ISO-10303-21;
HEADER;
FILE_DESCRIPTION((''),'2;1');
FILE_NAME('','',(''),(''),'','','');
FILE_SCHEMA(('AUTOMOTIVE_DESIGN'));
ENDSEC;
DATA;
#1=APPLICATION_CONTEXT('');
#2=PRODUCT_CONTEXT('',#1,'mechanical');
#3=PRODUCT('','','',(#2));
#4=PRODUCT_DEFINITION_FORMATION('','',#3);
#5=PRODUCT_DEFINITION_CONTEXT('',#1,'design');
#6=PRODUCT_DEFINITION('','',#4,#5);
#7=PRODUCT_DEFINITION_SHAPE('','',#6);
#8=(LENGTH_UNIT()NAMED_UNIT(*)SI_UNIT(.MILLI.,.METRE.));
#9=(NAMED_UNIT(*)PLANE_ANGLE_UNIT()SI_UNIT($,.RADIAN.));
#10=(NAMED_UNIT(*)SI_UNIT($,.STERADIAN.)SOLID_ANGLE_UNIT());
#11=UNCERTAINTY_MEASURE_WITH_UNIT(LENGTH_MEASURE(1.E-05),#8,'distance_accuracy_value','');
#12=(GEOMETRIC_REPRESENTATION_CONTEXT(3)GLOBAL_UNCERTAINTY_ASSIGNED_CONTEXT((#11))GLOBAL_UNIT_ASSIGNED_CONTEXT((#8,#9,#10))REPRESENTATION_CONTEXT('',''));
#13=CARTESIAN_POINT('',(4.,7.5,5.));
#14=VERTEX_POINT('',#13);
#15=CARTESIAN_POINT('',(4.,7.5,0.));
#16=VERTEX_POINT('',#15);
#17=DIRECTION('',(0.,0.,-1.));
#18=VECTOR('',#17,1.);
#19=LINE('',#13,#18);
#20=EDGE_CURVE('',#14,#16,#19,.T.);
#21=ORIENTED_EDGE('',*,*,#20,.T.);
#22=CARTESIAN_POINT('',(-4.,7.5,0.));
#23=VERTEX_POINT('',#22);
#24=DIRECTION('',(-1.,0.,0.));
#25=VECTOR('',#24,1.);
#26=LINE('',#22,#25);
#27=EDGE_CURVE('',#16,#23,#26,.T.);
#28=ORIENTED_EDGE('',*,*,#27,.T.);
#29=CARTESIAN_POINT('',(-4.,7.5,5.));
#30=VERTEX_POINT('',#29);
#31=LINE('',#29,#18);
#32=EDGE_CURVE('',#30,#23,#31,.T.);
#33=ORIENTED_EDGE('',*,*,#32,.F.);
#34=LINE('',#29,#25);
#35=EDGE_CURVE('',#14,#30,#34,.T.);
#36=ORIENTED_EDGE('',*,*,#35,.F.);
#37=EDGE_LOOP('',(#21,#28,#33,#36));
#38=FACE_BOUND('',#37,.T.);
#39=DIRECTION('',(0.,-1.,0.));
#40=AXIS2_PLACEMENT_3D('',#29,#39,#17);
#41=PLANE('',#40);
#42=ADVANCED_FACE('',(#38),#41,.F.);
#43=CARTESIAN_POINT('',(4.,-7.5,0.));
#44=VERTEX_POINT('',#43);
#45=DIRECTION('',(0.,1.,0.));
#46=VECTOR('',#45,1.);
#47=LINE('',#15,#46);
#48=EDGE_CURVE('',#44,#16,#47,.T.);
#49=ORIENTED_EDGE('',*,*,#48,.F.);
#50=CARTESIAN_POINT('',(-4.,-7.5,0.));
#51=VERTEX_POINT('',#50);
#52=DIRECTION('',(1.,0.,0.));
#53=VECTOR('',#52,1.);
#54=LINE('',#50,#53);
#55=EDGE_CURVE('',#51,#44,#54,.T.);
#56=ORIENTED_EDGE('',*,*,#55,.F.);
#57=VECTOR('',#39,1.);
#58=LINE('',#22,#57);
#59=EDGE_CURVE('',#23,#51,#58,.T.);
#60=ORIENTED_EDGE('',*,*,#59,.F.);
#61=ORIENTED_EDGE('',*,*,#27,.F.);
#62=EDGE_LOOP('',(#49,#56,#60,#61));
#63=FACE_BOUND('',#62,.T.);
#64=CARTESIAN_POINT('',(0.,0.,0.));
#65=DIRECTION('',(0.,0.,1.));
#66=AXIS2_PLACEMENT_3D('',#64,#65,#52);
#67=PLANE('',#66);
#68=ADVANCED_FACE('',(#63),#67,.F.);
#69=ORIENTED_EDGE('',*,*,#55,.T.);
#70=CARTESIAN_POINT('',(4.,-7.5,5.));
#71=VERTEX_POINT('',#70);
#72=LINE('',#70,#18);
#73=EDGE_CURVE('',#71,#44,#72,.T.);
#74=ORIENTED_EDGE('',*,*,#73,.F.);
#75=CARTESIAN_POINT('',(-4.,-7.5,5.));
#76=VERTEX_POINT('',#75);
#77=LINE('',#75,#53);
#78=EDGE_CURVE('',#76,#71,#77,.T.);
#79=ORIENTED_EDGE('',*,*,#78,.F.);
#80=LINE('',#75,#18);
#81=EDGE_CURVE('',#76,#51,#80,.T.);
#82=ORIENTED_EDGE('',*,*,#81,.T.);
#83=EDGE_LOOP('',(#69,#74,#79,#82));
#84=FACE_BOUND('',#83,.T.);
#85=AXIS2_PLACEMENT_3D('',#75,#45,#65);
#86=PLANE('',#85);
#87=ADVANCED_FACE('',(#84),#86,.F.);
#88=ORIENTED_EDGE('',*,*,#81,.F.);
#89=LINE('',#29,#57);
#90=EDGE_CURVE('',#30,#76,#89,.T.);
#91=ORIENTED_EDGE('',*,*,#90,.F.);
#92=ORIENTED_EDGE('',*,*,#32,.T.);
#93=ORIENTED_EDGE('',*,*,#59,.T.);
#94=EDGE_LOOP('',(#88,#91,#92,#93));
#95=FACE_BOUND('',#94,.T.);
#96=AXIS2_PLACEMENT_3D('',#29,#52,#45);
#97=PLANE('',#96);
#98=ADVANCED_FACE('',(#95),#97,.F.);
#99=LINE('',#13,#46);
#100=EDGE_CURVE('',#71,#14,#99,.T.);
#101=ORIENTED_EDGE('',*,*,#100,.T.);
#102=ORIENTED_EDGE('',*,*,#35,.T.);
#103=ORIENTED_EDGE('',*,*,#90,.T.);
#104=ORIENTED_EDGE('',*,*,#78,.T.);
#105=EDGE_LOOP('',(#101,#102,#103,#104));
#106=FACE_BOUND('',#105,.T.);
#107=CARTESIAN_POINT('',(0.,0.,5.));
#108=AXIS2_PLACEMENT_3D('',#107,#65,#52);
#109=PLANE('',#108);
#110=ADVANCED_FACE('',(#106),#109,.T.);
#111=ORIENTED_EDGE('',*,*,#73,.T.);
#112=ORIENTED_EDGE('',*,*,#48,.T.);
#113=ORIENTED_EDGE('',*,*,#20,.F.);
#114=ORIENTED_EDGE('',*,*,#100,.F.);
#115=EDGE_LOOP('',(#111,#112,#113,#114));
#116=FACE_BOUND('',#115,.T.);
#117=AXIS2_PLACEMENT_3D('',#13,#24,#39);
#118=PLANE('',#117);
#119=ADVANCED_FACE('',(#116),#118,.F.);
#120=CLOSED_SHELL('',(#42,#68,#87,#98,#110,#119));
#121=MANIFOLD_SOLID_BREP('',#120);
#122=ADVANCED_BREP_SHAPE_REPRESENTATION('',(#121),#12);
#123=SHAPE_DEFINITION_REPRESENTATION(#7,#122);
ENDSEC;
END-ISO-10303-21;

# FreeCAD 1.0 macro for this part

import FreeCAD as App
import Part
import Sketcher
from FreeCAD import Vector


def add_polygon(sketch, points):
    """Adds a closed chain of lines whose ends are joined by coincident constraints."""
    first, n = sketch.GeometryCount, len(points)
    for a, b in zip(points, points[1:] + points[:1]):
        sketch.addGeometry(Part.LineSegment(App.Vector(*a, 0), App.Vector(*b, 0)), False)
    for i in range(n):
        sketch.addConstraint(Sketcher.Constraint("Coincident", first + i, 2, first + (i + 1) % n, 1))

doc = App.newDocument("Part")
body = doc.addObject("PartDesign::Body", "Body")

# Sketch on XY plane
sketch1 = body.newObject("Sketcher::SketchObject", "Sketch")
sketch1.AttachmentSupport = (doc.getObject("XY_Plane"), [""])
sketch1.MapMode = "FlatFace"
add_polygon(sketch1, [(-4, 8), (-4, -8), (4, -8), (4, 8)])  # lines 0-3
sketch1.addConstraint([
    Sketcher.Constraint("Vertical", 0),
    Sketcher.Constraint("Horizontal", 1),
    Sketcher.Constraint("Vertical", 2),
    Sketcher.Constraint("Horizontal", 3),
    Sketcher.Constraint("Symmetric", 0, 2, 2, 2, -1, 1),
    Sketcher.Constraint("DistanceX", 1, 1, 1, 2, 8.0),
    Sketcher.Constraint("DistanceY", 0, 2, 0, 1, 15.0),
])
pad1 = body.newObject("PartDesign::Pad", "Pad")
pad1.Profile = sketch1
pad1.Length = 5

doc.recompute()
